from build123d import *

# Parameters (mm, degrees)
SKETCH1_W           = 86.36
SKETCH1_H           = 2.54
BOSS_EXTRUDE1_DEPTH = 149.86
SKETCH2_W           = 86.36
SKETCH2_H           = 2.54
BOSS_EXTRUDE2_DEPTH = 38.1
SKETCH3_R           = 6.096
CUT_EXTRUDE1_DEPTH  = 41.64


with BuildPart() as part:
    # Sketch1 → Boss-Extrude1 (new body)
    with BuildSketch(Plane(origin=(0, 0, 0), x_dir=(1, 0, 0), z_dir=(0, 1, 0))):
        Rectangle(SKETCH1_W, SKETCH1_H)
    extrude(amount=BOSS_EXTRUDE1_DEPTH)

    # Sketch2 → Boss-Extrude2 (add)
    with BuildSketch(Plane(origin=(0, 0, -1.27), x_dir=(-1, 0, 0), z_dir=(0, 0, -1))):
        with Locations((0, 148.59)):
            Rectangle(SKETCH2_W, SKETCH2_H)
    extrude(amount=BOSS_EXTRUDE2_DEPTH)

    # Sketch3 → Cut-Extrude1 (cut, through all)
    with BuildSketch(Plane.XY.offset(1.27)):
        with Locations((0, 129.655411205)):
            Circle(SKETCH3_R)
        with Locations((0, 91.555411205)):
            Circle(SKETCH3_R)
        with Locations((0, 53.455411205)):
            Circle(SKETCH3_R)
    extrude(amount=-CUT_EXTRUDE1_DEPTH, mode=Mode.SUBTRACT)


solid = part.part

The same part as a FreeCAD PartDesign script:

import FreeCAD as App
import Part
import Sketcher

V = App.Vector
Q = App.Units.Quantity


def add_polygon(sketch, points):
    """Adds a closed chain of lines whose ends are joined by coincident constraints."""
    first, n = sketch.GeometryCount, len(points)
    for a, b in zip(points, points[1:] + points[:1]):
        sketch.addGeometry(Part.LineSegment(App.Vector(*a, 0), App.Vector(*b, 0)), False)
    for i in range(n):
        sketch.addConstraint(Sketcher.Constraint("Coincident", first + i, 2, first + (i + 1) % n, 1))

doc = App.newDocument("Part")
body = doc.addObject("PartDesign::Body", "Body")

# Sketch on XZ plane
sketch1 = body.newObject("Sketcher::SketchObject", "Sketch")
sketch1.AttachmentSupport = (doc.getObject("XZ_Plane"), [""])
sketch1.MapMode = "FlatFace"
add_polygon(sketch1, [(-43.2, -1.3), (-43.2, 1.3), (43.2, 1.3), (43.2, -1.3)])  # lines 0-3
sketch1.addConstraint([
    Sketcher.Constraint("Vertical", 0),
    Sketcher.Constraint("Horizontal", 1),
    Sketcher.Constraint("Vertical", 2),
    Sketcher.Constraint("Horizontal", 3),
    Sketcher.Constraint("Symmetric", 0, 2, 2, 2, -1, 1),
    Sketcher.Constraint("DistanceX", 1, 1, 1, 2, Q("3.4 in")),
    Sketcher.Constraint("DistanceY", 0, 1, 0, 2, Q("0.1 in")),
])
pad1 = body.newObject("PartDesign::Pad", "Pad")
pad1.Profile = sketch1
pad1.Length = Q("5.9 in")
pad1.Reversed = True

# Sketch on XY plane
sketch2 = body.newObject("Sketcher::SketchObject", "Sketch001")
sketch2.AttachmentSupport = (doc.getObject("XY_Plane"), [""])
sketch2.MapMode = "FlatFace"
sketch2.AttachmentOffset = App.Placement(V(0, 0, -0.05 * 25.4), App.Rotation())
add_polygon(sketch2, [(43.2, 149.9), (43.2, 147.3), (-43.2, 147.3), (-43.2, 149.9)])  # lines 0-3
sketch2.addConstraint([
    Sketcher.Constraint("Vertical", 0),
    Sketcher.Constraint("Horizontal", 1),
    Sketcher.Constraint("Vertical", 2),
    Sketcher.Constraint("Horizontal", 3),
    Sketcher.Constraint("DistanceX", 1, 2, 1, 1, Q("3.4 in")),
    Sketcher.Constraint("DistanceY", 0, 2, 0, 1, Q("0.1 in")),
    Sketcher.Constraint("DistanceX", -1, 1, 0, 2, Q("1.7 in")),
    Sketcher.Constraint("DistanceY", -1, 1, 0, 2, Q("5.8 in")),
])
pad2 = body.newObject("PartDesign::Pad", "Pad001")
pad2.Profile = sketch2
pad2.Length = Q("1.5 in")
pad2.Reversed = True

# Sketch on XY plane
sketch3 = body.newObject("Sketcher::SketchObject", "Sketch002")
sketch3.AttachmentSupport = (doc.getObject("XY_Plane"), [""])
sketch3.MapMode = "FlatFace"
sketch3.AttachmentOffset = App.Placement(V(0, 0, 0.05 * 25.4), App.Rotation())
sketch3.addGeometry([
    Part.Circle(V(0, 130, 0), V(0, 0, 1), 6),
    Part.Circle(V(0, 92, 0), V(0, 0, 1), 6),
    Part.Circle(V(0, 53, 0), V(0, 0, 1), 6),
], False)
sketch3.addConstraint([
    Sketcher.Constraint("Equal", 0, 1),
    Sketcher.Constraint("Equal", 1, 2),
    Sketcher.Constraint("PointOnObject", 0, 3, -2),
    Sketcher.Constraint("PointOnObject", 1, 3, -2),
    Sketcher.Constraint("PointOnObject", 2, 3, -2),
    Sketcher.Constraint("Diameter", 0, Q("0.48 in")),
    Sketcher.Constraint("DistanceY", 2, 3, 0, 3, Q("3 in")),
    Sketcher.Constraint("DistanceY", 1, 3, 0, 3, Q("1.5 in")),
    Sketcher.Constraint("DistanceY", -1, 1, 0, 3, 129.655411),
])
pocket1 = body.newObject("PartDesign::Pocket", "Pocket")
pocket1.Profile = sketch3
pocket1.Type = "ThroughAll"

doc.recompute()
